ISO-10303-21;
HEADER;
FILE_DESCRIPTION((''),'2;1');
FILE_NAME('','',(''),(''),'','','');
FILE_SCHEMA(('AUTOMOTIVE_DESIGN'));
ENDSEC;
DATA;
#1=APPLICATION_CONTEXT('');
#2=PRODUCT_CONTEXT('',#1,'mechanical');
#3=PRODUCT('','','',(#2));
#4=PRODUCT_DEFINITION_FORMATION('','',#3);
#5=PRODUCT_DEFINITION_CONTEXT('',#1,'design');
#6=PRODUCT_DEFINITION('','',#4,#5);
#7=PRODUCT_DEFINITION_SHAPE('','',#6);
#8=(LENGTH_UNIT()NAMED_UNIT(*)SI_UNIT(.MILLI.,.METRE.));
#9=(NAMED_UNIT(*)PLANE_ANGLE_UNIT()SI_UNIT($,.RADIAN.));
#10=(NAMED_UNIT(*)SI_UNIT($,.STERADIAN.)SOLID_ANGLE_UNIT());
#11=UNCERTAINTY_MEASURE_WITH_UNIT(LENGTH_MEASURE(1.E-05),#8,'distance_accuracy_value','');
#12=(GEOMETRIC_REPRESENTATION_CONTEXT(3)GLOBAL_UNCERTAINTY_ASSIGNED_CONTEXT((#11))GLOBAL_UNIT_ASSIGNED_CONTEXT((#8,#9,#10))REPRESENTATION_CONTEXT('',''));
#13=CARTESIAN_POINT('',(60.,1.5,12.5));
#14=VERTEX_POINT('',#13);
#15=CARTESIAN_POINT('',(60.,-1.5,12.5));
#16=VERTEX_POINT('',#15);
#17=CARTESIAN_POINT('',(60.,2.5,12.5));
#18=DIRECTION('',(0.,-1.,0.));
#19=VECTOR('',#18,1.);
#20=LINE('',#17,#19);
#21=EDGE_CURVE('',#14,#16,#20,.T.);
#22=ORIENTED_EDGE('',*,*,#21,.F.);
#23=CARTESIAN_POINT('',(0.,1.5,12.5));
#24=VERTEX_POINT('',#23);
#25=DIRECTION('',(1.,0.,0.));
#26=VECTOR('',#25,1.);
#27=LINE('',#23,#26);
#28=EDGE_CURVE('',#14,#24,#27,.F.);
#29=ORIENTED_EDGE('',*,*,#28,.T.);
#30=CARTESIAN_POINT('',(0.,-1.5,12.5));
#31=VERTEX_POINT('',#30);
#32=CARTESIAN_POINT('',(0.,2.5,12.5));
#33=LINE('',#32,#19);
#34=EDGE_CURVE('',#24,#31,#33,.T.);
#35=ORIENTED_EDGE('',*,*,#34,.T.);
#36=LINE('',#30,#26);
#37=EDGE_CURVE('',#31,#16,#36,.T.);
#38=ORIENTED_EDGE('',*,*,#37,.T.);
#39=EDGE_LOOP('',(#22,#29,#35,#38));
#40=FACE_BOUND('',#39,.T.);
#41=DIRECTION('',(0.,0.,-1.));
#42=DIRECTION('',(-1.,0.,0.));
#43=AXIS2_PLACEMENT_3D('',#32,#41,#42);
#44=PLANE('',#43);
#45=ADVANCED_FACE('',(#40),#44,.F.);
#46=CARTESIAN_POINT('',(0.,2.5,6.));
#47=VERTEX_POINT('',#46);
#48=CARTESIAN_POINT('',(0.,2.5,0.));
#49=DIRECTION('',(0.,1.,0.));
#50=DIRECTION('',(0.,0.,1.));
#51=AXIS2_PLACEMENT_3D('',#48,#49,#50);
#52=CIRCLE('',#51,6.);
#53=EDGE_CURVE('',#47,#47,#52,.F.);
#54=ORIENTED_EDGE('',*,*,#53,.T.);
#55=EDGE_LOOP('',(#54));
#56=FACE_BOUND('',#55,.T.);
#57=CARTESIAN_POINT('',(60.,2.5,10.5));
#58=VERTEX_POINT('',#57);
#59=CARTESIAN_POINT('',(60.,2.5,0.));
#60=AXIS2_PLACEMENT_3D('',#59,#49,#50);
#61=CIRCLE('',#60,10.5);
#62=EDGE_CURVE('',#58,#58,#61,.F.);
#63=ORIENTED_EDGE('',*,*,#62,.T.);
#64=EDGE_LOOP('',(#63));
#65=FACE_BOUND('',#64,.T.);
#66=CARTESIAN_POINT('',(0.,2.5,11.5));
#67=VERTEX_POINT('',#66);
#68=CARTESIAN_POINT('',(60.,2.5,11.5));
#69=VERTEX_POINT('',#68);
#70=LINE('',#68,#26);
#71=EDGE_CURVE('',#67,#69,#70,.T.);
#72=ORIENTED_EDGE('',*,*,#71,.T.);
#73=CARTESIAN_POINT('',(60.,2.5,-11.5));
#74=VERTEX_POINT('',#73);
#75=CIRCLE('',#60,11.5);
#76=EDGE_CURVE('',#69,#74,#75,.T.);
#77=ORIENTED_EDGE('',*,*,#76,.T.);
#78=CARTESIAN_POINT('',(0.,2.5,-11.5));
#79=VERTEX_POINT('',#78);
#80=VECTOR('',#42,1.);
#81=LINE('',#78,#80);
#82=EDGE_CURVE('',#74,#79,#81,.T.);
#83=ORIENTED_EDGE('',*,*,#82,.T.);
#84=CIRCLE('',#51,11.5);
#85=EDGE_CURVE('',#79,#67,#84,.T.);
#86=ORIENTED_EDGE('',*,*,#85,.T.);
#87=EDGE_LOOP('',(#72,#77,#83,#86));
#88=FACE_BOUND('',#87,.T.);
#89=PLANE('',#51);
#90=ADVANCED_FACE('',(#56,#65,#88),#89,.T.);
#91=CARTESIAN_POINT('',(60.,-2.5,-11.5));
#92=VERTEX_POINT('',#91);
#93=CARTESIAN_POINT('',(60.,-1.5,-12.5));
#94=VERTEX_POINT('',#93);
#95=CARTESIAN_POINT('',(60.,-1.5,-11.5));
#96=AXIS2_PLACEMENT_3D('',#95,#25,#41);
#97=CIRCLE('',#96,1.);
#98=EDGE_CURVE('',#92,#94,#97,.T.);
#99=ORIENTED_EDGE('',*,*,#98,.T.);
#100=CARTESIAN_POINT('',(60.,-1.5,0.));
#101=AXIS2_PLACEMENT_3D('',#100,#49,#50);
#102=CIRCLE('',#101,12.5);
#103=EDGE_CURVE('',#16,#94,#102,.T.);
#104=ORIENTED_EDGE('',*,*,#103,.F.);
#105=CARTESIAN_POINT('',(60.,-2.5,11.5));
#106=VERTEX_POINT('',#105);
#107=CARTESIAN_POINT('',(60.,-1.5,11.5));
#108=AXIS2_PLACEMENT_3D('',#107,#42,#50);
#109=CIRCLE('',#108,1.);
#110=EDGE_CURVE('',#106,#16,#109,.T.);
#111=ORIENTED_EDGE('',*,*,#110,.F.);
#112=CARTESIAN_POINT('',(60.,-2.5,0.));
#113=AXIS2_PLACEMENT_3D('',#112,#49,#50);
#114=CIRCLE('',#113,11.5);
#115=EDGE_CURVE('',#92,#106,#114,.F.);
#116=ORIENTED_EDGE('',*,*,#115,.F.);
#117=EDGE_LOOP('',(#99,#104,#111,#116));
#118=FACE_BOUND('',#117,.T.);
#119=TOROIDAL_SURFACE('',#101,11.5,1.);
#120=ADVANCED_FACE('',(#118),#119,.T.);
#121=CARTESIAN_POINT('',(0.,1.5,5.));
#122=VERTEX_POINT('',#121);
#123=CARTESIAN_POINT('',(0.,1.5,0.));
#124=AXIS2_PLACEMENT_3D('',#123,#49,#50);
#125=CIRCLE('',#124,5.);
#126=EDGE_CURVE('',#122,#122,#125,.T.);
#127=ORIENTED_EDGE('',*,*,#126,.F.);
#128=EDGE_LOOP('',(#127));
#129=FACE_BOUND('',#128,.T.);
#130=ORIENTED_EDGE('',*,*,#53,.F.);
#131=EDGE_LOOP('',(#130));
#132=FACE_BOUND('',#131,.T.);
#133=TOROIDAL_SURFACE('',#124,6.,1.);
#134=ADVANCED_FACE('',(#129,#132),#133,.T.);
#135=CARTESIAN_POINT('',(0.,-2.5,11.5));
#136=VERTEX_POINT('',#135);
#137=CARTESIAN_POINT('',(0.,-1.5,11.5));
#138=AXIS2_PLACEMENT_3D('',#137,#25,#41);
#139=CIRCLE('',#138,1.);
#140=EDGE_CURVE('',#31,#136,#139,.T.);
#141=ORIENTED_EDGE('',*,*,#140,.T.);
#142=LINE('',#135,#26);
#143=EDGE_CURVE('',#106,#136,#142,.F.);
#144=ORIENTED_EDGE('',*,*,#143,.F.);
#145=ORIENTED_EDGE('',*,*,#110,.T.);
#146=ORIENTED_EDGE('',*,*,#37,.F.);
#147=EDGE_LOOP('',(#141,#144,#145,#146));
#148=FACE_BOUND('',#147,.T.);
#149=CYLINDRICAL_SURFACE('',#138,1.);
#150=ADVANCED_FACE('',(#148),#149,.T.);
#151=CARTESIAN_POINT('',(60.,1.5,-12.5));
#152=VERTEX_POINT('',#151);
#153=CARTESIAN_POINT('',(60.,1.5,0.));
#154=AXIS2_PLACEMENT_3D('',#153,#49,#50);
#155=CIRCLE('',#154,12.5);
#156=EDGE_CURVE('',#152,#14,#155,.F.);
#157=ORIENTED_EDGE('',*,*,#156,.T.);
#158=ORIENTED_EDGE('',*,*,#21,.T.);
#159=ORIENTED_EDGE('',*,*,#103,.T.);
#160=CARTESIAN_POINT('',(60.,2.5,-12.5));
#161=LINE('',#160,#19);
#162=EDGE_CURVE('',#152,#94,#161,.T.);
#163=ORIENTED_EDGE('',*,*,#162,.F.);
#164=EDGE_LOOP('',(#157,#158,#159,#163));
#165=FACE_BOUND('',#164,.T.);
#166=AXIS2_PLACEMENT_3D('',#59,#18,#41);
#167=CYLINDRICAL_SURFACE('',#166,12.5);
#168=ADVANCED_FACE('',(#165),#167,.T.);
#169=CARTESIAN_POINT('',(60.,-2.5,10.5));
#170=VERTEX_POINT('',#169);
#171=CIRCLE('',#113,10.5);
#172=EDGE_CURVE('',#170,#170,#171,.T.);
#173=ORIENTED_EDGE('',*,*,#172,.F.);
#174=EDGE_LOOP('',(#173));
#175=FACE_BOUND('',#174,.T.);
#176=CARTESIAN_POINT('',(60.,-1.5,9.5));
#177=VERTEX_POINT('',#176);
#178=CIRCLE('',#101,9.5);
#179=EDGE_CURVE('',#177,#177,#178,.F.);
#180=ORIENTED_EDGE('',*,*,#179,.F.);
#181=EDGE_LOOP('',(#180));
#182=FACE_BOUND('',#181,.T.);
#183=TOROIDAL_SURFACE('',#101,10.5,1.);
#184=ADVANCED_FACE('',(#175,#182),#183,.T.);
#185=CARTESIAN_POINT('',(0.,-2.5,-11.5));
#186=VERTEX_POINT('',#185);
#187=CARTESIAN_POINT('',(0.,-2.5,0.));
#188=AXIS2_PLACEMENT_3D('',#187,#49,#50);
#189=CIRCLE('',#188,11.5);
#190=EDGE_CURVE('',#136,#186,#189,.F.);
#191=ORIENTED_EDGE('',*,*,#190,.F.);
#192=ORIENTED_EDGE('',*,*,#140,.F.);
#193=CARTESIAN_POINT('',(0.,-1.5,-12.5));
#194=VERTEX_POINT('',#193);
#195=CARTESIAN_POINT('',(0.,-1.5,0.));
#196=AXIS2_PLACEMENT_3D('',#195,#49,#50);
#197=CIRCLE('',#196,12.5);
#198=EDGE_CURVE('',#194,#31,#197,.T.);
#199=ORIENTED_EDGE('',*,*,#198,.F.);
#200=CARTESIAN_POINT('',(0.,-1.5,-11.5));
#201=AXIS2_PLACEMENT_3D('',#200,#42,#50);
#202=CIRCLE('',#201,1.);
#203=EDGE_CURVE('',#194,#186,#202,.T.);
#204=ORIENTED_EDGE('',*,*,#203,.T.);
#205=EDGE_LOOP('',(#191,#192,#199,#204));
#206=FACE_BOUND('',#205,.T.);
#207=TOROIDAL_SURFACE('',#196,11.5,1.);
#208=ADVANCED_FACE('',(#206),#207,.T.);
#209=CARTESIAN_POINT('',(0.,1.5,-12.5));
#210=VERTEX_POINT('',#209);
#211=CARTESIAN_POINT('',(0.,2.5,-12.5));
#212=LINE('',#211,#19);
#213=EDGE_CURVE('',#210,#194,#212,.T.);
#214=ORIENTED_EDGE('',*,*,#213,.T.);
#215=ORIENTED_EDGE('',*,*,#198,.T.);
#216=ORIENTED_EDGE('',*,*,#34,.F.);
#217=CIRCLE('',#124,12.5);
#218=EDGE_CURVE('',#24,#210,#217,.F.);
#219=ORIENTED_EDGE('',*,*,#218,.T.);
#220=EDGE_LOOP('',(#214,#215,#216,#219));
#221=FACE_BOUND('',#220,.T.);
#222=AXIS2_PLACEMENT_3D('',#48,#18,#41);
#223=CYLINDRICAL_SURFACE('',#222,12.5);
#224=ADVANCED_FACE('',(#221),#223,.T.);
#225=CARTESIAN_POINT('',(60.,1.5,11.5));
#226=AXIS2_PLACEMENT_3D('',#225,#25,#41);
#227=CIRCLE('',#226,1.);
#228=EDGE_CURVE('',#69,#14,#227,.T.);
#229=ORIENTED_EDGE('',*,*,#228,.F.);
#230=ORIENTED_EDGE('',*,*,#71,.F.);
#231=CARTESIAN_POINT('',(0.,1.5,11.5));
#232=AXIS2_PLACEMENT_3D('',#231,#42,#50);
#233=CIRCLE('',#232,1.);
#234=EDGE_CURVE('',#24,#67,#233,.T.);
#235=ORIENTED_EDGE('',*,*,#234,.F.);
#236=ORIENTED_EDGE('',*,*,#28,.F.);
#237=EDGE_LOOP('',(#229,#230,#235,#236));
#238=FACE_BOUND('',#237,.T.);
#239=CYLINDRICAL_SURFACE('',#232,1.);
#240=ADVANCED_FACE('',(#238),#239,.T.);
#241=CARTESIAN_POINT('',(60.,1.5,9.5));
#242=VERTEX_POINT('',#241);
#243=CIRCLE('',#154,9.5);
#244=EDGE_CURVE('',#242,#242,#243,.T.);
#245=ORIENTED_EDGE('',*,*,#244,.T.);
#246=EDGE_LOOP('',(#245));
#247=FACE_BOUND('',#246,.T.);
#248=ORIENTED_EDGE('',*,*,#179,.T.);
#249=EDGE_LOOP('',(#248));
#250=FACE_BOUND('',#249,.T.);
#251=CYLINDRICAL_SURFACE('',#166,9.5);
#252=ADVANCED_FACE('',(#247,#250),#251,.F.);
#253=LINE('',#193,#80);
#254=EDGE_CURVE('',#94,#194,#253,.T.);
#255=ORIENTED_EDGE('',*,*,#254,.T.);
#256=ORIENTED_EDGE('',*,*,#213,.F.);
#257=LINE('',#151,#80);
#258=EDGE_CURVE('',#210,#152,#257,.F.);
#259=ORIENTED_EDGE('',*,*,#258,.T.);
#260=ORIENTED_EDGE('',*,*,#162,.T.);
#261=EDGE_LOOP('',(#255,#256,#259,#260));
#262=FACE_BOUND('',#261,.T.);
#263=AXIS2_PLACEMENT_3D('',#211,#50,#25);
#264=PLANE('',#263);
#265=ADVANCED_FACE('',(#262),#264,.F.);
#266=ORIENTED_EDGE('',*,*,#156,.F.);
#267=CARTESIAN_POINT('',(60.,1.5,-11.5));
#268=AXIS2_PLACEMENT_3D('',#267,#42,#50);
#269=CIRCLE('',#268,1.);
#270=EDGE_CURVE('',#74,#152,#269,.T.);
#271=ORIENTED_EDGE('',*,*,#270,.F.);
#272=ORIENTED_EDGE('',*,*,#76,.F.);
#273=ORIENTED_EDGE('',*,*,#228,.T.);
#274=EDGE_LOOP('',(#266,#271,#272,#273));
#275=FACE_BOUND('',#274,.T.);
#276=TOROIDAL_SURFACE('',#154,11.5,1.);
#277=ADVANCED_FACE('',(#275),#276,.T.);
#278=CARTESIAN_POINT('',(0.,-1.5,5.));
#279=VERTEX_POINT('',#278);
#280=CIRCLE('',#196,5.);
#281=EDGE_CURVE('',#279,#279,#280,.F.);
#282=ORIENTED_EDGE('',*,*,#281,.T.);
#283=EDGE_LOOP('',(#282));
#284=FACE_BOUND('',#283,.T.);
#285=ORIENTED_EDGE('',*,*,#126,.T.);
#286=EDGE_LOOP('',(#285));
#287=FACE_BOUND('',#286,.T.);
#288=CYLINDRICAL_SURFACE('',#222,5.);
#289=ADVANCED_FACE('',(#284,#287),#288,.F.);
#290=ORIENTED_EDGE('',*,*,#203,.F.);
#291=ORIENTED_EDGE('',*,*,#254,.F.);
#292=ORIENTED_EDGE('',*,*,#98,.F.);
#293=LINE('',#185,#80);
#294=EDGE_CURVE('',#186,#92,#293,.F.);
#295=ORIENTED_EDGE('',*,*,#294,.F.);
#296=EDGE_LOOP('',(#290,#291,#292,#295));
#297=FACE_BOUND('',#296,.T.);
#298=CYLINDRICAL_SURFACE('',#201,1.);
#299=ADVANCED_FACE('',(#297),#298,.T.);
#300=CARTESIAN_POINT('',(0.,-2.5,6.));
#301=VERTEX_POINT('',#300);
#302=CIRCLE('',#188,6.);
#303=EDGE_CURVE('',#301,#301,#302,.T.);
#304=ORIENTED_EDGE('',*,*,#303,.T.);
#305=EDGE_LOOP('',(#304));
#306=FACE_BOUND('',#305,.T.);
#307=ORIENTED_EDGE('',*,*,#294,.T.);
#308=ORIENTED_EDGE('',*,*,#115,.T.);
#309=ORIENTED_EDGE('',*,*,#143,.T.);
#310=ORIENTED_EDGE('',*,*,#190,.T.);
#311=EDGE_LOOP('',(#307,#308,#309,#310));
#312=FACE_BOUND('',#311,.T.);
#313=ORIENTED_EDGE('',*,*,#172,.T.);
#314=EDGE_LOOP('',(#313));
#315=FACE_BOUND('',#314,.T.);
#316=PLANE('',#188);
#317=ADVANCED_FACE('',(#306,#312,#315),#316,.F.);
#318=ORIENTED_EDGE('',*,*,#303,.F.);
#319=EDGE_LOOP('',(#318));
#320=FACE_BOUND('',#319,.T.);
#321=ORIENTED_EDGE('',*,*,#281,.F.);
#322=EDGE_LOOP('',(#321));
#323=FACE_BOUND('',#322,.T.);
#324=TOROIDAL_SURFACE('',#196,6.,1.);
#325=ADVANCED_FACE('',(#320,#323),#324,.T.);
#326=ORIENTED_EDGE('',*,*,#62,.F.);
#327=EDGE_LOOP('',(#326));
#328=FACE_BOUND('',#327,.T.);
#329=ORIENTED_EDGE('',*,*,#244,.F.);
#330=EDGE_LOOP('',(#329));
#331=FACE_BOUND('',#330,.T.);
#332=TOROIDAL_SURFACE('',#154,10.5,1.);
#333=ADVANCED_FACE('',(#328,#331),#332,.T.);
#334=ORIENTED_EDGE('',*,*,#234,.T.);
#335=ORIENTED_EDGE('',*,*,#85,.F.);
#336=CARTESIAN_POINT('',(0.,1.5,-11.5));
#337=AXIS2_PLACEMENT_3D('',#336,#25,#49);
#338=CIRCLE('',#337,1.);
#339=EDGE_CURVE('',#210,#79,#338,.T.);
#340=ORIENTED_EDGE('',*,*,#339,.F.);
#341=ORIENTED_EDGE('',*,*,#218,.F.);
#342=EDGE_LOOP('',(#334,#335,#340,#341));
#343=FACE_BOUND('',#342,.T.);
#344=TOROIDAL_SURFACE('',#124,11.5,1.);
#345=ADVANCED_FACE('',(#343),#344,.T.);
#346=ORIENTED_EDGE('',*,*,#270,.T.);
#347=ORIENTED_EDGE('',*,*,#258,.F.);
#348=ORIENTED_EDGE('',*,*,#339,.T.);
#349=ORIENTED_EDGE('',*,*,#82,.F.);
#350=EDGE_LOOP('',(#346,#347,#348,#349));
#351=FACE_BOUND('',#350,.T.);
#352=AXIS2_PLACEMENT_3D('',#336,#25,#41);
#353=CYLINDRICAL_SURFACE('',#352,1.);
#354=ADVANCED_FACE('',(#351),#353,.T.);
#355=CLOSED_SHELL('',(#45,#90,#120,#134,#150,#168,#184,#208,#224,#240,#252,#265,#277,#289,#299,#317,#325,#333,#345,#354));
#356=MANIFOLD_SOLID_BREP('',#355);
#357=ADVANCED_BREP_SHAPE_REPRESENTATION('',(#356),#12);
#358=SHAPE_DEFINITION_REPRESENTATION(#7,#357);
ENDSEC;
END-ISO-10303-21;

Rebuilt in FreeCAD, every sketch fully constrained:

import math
import FreeCAD as App
import Part
import Sketcher

V = App.Vector


def edges_at(feature, points):
    """Names of the edges that pass closest to the given points."""
    edges = feature.Shape.Edges
    near = lambda p: min(range(len(edges)), key=lambda i: edges[i].distToShape(Part.Vertex(*p))[0])
    return sorted({f"Edge{near(p) + 1}" for p in points})

doc = App.newDocument("Part")
body = doc.addObject("PartDesign::Body", "Body")

# Sketch on XZ plane
sketch1 = doc.addObject("Sketcher::SketchObject", "Sketch")
body.addObject(sketch1)
sketch1.AttachmentSupport = (doc.XZ_Plane, [""])
sketch1.MapMode = "FlatFace"
sketch1.addGeometry([
    Part.LineSegment(V(60, -12, 0), V(0, -12, 0)),  # 0
    Part.ArcOfCircle(Part.Circle(V(0, 0, 0), V(0, 0, 1), 12), math.radians(90), math.radians(270)),  # 1
    Part.LineSegment(V(0, 12, 0), V(60, 12, 0)),  # 2
    Part.ArcOfCircle(Part.Circle(V(60, 0, 0), V(0, 0, 1), 12), math.radians(-90), math.radians(90)),  # 3
    Part.Circle(V(60, 0, 0), V(0, 0, 1), 10),  # 4
    Part.Circle(V(0, 0, 0), V(0, 0, 1), 5),  # 5
], False)
sketch1.addConstraint([
    Sketcher.Constraint("Tangent", 0, 2, 1, 2),
    Sketcher.Constraint("Tangent", 1, 1, 2, 1),
    Sketcher.Constraint("Tangent", 2, 2, 3, 2),
    Sketcher.Constraint("Tangent", 3, 1, 0, 1),
    Sketcher.Constraint("Horizontal", 0),
    Sketcher.Constraint("Horizontal", 2),
    Sketcher.Constraint("Coincident", 1, 3, -1, 1),
    Sketcher.Constraint("Coincident", 5, 3, -1, 1),
    Sketcher.Constraint("Coincident", 4, 3, 3, 3),
    Sketcher.Constraint("Diameter", 4, 19.0),
    Sketcher.Constraint("Diameter", 5, 10.0),
    Sketcher.Constraint("Radius", 1, 12.5),
    Sketcher.Constraint("DistanceX", 0, 2, 0, 1, 60.0),
])
pad1 = doc.addObject("PartDesign::Pad", "Pad")
body.addObject(pad1)
pad1.Profile = sketch1
pad1.Length = 5
pad1.Midplane = True
doc.recompute()

fillet = doc.addObject("PartDesign::Fillet", "Fillet")
body.addObject(fillet)
fillet.Base = (pad1, edges_at(pad1, [
    (0, -2.5, -5),
    (0, 2.5, -5),
    (72.5, 2.5, 0),
    (60, -2.5, -9.5),
    (60, 2.5, -9.5),
    (30, 2.5, -12.5),
    (-12.5, 2.5, 0),
    (30, -2.5, -12.5),
    (72.5, -2.5, 0),
    (30, -2.5, 12.5),
    (-12.5, -2.5, 0),
    (30, 2.5, 12.5),
]))
fillet.Radius = 1

doc.recompute()
